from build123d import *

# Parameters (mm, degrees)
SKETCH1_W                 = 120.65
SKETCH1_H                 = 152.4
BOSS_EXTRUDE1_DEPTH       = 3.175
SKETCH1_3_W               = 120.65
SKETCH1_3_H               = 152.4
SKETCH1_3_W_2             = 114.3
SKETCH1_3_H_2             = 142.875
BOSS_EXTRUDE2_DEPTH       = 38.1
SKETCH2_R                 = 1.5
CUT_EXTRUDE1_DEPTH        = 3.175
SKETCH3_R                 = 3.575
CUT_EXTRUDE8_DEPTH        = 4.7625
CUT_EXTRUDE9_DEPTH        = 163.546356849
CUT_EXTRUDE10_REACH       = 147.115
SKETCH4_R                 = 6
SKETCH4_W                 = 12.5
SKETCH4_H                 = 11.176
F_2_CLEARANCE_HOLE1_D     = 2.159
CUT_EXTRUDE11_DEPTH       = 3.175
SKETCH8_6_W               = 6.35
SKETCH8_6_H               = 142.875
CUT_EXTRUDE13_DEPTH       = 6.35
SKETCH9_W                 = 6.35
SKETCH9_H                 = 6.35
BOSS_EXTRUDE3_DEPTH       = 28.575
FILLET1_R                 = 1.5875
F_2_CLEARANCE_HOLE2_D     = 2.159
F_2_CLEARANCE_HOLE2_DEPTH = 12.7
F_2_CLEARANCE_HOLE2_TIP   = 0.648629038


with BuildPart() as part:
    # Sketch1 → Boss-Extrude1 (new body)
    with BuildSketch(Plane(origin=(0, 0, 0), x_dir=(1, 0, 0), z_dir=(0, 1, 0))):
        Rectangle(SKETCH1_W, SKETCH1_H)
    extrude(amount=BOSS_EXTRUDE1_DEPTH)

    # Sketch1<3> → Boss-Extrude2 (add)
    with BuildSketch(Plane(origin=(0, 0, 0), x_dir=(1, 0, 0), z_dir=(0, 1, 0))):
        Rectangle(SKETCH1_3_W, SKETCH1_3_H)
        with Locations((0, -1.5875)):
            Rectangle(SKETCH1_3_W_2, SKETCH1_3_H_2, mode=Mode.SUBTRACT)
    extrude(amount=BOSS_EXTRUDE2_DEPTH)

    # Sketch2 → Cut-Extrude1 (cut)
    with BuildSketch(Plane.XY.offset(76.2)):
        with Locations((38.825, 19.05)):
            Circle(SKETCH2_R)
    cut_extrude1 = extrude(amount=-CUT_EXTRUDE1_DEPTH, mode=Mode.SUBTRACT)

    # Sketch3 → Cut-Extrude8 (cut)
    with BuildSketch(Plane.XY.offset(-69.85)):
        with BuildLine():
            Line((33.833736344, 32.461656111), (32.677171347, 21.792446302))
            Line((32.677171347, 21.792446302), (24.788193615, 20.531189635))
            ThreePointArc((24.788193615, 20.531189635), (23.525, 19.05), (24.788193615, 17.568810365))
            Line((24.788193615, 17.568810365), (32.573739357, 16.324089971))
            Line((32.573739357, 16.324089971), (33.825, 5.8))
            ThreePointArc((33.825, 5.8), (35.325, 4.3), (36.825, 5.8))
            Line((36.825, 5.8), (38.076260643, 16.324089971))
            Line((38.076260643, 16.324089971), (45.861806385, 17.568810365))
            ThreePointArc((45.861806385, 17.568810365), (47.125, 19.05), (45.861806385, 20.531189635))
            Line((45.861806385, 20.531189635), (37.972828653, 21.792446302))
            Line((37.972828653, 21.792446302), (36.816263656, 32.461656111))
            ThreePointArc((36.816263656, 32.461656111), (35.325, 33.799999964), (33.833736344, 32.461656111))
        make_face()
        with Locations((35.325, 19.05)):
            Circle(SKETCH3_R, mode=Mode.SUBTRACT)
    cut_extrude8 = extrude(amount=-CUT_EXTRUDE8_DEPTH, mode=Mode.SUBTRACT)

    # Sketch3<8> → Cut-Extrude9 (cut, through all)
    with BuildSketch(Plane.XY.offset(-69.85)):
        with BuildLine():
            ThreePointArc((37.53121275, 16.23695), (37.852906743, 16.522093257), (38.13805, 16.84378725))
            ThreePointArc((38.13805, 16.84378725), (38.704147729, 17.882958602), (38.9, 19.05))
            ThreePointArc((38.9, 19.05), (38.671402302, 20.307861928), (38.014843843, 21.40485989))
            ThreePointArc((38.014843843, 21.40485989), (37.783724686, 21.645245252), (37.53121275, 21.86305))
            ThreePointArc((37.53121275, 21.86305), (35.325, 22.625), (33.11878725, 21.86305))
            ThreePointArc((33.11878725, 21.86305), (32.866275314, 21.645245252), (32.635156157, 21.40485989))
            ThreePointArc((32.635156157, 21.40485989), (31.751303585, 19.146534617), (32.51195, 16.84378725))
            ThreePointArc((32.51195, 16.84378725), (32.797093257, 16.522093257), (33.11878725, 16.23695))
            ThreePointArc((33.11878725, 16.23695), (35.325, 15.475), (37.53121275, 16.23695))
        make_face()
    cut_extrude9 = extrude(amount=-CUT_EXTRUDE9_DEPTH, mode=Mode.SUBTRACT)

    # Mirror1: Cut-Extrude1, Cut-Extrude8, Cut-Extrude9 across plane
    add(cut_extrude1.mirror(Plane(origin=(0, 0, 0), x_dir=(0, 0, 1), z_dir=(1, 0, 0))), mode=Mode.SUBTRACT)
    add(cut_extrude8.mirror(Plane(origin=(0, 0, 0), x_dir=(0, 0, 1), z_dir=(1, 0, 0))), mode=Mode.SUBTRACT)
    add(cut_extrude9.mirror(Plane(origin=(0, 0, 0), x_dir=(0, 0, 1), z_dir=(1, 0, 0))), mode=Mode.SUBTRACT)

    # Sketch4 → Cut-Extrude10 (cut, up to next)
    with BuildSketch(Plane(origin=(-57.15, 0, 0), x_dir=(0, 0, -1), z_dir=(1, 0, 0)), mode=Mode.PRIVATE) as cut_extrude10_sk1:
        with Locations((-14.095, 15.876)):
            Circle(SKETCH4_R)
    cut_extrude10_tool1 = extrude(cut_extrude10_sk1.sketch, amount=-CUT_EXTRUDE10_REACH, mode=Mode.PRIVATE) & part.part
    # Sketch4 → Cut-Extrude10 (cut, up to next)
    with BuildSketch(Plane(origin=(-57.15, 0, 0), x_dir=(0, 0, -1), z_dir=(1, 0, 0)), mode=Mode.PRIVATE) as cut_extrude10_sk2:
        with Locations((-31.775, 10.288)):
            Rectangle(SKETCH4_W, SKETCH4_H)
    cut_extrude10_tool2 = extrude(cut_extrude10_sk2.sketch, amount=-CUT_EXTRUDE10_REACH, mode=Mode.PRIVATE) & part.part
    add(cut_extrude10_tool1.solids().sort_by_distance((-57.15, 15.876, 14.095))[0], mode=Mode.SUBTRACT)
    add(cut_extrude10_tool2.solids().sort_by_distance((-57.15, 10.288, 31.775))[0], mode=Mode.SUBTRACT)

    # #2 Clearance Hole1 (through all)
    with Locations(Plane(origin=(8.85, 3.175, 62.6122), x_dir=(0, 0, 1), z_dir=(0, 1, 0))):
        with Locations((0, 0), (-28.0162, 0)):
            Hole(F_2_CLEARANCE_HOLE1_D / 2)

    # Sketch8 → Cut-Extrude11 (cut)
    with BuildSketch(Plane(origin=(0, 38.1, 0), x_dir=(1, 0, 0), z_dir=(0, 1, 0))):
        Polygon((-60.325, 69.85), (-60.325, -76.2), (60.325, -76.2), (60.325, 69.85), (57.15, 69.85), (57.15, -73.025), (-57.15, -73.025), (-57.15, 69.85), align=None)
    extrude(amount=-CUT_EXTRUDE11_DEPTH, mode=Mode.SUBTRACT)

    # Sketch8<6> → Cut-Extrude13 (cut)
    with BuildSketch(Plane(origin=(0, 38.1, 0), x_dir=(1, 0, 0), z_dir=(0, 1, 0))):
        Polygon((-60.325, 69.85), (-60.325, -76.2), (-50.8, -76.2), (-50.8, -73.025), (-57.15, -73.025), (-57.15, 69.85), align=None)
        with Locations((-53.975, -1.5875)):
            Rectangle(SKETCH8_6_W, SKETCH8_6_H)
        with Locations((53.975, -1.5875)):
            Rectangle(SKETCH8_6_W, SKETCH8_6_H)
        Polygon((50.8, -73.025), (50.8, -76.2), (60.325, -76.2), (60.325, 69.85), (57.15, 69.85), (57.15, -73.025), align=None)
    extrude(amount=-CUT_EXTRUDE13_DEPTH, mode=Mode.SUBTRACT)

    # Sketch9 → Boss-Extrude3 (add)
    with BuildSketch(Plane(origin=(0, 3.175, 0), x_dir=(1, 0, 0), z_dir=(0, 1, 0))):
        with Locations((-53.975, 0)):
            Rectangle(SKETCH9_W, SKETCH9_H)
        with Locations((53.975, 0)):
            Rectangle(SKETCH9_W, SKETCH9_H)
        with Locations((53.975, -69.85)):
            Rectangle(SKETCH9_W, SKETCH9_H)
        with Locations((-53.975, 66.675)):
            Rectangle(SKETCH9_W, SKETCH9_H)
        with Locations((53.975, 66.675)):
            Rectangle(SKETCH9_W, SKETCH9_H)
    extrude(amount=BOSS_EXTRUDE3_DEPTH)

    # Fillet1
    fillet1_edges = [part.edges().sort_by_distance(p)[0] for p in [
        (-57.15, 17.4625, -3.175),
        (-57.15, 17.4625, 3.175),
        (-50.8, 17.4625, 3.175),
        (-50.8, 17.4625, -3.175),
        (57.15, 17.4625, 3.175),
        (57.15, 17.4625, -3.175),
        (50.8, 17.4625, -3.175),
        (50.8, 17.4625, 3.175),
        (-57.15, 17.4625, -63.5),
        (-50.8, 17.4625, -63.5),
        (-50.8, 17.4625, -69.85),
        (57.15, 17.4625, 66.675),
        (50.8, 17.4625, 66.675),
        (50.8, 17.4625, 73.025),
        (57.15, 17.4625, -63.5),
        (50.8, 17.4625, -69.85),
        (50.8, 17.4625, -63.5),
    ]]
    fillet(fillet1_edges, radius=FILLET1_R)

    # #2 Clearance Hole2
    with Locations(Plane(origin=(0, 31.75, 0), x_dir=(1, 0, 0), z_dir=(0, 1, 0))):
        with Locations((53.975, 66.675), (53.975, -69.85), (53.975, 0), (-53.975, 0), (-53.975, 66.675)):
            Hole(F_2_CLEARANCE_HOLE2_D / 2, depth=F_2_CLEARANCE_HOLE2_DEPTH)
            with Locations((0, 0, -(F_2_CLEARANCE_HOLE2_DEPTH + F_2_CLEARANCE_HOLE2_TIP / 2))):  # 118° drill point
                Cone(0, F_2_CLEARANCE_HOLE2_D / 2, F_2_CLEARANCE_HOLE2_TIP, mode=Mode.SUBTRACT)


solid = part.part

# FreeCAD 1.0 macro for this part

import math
import FreeCAD as App
import Part
import Sketcher

V = App.Vector
Q = App.Units.Quantity


def edges_at(feature, points):
    """Names of the edges that pass closest to the given points."""
    edges = feature.Shape.Edges
    near = lambda p: min(range(len(edges)), key=lambda i: edges[i].distToShape(Part.Vertex(*p))[0])
    return sorted({f"Edge{near(p) + 1}" for p in points})

doc = App.newDocument("Part")
body = doc.addObject("PartDesign::Body", "Body")

# Sketch on XZ plane
sketch1 = body.newObject("Sketcher::SketchObject", "Sketch")
sketch1.AttachmentSupport = (doc.getObject("XZ_Plane"), [""])
sketch1.MapMode = "FlatFace"
sketch1.addGeometry(Part.LineSegment(V(-60.325, -76.2, 0), V(-60.325, 76.2, 0)), False)
sketch1.addGeometry(Part.LineSegment(V(-60.325, 76.2, 0), V(60.325, 76.2, 0)), False)
sketch1.addGeometry(Part.LineSegment(V(60.325, 76.2, 0), V(60.325, -76.2, 0)), False)
sketch1.addGeometry(Part.LineSegment(V(60.325, -76.2, 0), V(-60.325, -76.2, 0)), False)
sketch1.addConstraint(Sketcher.Constraint("Coincident", 0, 2, 1, 1))
sketch1.addConstraint(Sketcher.Constraint("Coincident", 1, 2, 2, 1))
sketch1.addConstraint(Sketcher.Constraint("Coincident", 2, 2, 3, 1))
sketch1.addConstraint(Sketcher.Constraint("Coincident", 3, 2, 0, 1))
sketch1.addConstraint(Sketcher.Constraint("Vertical", 0))
sketch1.addConstraint(Sketcher.Constraint("Horizontal", 1))
sketch1.addConstraint(Sketcher.Constraint("Vertical", 2))
sketch1.addConstraint(Sketcher.Constraint("Horizontal", 3))
sketch1.addConstraint(Sketcher.Constraint("Symmetric", 0, 2, 2, 2, -1, 1))
sketch1.addConstraint(Sketcher.Constraint("DistanceY", 0, 1, 0, 2, Q("6 in")))
sketch1.addConstraint(Sketcher.Constraint("DistanceX", 1, 1, 1, 2, Q("4.75 in")))
pad1 = body.newObject("PartDesign::Pad", "Pad")
pad1.Profile = sketch1
pad1.Length = Q("0.125 in")
pad1.Reversed = True

# Sketch on XZ plane
sketch2 = body.newObject("Sketcher::SketchObject", "Sketch001")
sketch2.AttachmentSupport = (doc.getObject("XZ_Plane"), [""])
sketch2.MapMode = "FlatFace"
sketch2.addGeometry(Part.LineSegment(V(-60.325, -76.2, 0), V(-60.325, 76.2, 0)), False)
sketch2.addGeometry(Part.LineSegment(V(-60.325, 76.2, 0), V(60.325, 76.2, 0)), False)
sketch2.addGeometry(Part.LineSegment(V(60.325, 76.2, 0), V(60.325, -76.2, 0)), False)
sketch2.addGeometry(Part.LineSegment(V(60.325, -76.2, 0), V(-60.325, -76.2, 0)), False)
sketch2.addGeometry(Part.LineSegment(V(57.15, 73.025, 0), V(-57.15, 73.025, 0)), False)
sketch2.addGeometry(Part.LineSegment(V(-57.15, 73.025, 0), V(-57.15, -69.85, 0)), False)
sketch2.addGeometry(Part.LineSegment(V(-57.15, -69.85, 0), V(57.15, -69.85, 0)), False)
sketch2.addGeometry(Part.LineSegment(V(57.15, -69.85, 0), V(57.15, 73.025, 0)), False)
sketch2.addConstraint(Sketcher.Constraint("Coincident", 0, 2, 1, 1))
sketch2.addConstraint(Sketcher.Constraint("Coincident", 1, 2, 2, 1))
sketch2.addConstraint(Sketcher.Constraint("Coincident", 2, 2, 3, 1))
sketch2.addConstraint(Sketcher.Constraint("Coincident", 3, 2, 0, 1))
sketch2.addConstraint(Sketcher.Constraint("Coincident", 4, 2, 5, 1))
sketch2.addConstraint(Sketcher.Constraint("Coincident", 5, 2, 6, 1))
sketch2.addConstraint(Sketcher.Constraint("Coincident", 6, 2, 7, 1))
sketch2.addConstraint(Sketcher.Constraint("Coincident", 7, 2, 4, 1))
sketch2.addConstraint(Sketcher.Constraint("Vertical", 0))
sketch2.addConstraint(Sketcher.Constraint("Horizontal", 1))
sketch2.addConstraint(Sketcher.Constraint("Vertical", 2))
sketch2.addConstraint(Sketcher.Constraint("Horizontal", 3))
sketch2.addConstraint(Sketcher.Constraint("Horizontal", 4))
sketch2.addConstraint(Sketcher.Constraint("Vertical", 5))
sketch2.addConstraint(Sketcher.Constraint("Horizontal", 6))
sketch2.addConstraint(Sketcher.Constraint("Vertical", 7))
sketch2.addConstraint(Sketcher.Constraint("Symmetric", 0, 2, 2, 2, -1, 1))
sketch2.addConstraint(Sketcher.Constraint("DistanceY", 0, 1, 0, 2, Q("6 in")))
sketch2.addConstraint(Sketcher.Constraint("DistanceX", 4, 2, 4, 1, Q("4.5 in")))
sketch2.addConstraint(Sketcher.Constraint("DistanceX", 1, 1, 1, 2, Q("4.75 in")))
sketch2.addConstraint(Sketcher.Constraint("DistanceY", 5, 2, 5, 1, Q("5.625 in")))
sketch2.addConstraint(Sketcher.Constraint("DistanceX", 4, 2, -1, 1, Q("2.25 in")))
sketch2.addConstraint(Sketcher.Constraint("DistanceY", 5, 2, -1, 1, Q("2.75 in")))
pad2 = body.newObject("PartDesign::Pad", "Pad001")
pad2.Profile = sketch2
pad2.Length = Q("1.5 in")
pad2.Reversed = True

# Sketch on XY plane
sketch3 = body.newObject("Sketcher::SketchObject", "Sketch002")
sketch3.AttachmentSupport = (doc.getObject("XY_Plane"), [""])
sketch3.MapMode = "FlatFace"
sketch3.AttachmentOffset = App.Placement(V(0, 0, 3 * 25.4), App.Rotation())
sketch3.addGeometry(Part.Circle(V(38.825, 19.05, 0), V(0, 0, 1), 1.5), False)
sketch3.addConstraint(Sketcher.Constraint("Diameter", 0, 3.0))
sketch3.addConstraint(Sketcher.Constraint("DistanceY", -1, 1, 0, 3, Q("0.75 in")))
sketch3.addConstraint(Sketcher.Constraint("DistanceX", -1, 1, 0, 3, 38.825))
pocket1 = body.newObject("PartDesign::Pocket", "Pocket")
pocket1.Profile = sketch3
pocket1.Length = Q("0.125 in")

# Sketch on XY plane
sketch4 = body.newObject("Sketcher::SketchObject", "Sketch003")
sketch4.AttachmentSupport = (doc.getObject("XY_Plane"), [""])
sketch4.MapMode = "FlatFace"
sketch4.AttachmentOffset = App.Placement(V(0, 0, -2.75 * 25.4), App.Rotation())
sketch4.addGeometry(Part.LineSegment(V(33.833736, 32.461656, 0), V(32.677171, 21.792446, 0)), False)
sketch4.addGeometry(Part.LineSegment(V(32.677171, 21.792446, 0), V(24.788194, 20.53119, 0)), False)
sketch4.addGeometry(Part.ArcOfCircle(Part.Circle(V(25.025, 19.05, 0), V(0, 0, 1), 1.5), math.radians(99.083339), math.radians(260.916661)), False)
sketch4.addGeometry(Part.LineSegment(V(24.788194, 17.56881, 0), V(32.573739, 16.32409, 0)), False)
sketch4.addGeometry(Part.LineSegment(V(32.573739, 16.32409, 0), V(33.825, 5.8, 0)), False)
sketch4.addGeometry(Part.ArcOfCircle(Part.Circle(V(35.325, 5.8, 0), V(0, 0, 1), 1.5), math.radians(180), math.radians(360)), False)
sketch4.addGeometry(Part.LineSegment(V(36.825, 5.8, 0), V(38.076261, 16.32409, 0)), False)
sketch4.addGeometry(Part.LineSegment(V(38.076261, 16.32409, 0), V(45.861806, 17.56881, 0)), False)
sketch4.addGeometry(Part.ArcOfCircle(Part.Circle(V(45.625, 19.05, 0), V(0, 0, 1), 1.5), math.radians(-80.916661), math.radians(80.916661)), False)
sketch4.addGeometry(Part.LineSegment(V(45.861806, 20.53119, 0), V(37.972829, 21.792446, 0)), False)
sketch4.addGeometry(Part.LineSegment(V(37.972829, 21.792446, 0), V(36.816264, 32.461656, 0)), False)
sketch4.addGeometry(Part.ArcOfCircle(Part.Circle(V(35.325, 32.3, 0), V(0, 0, 1), 1.5), math.radians(6.186826), math.radians(173.813174)), False)
sketch4.addGeometry(Part.Circle(V(35.325, 19.05, 0), V(0, 0, 1), 3.575), False)
sketch4.addConstraint(Sketcher.Constraint("Coincident", 0, 2, 1, 1))
sketch4.addConstraint(Sketcher.Constraint("Tangent", 1, 2, 2, 1))
sketch4.addConstraint(Sketcher.Constraint("Tangent", 2, 2, 3, 1))
sketch4.addConstraint(Sketcher.Constraint("Coincident", 3, 2, 4, 1))
sketch4.addConstraint(Sketcher.Constraint("Coincident", 4, 2, 5, 1))
sketch4.addConstraint(Sketcher.Constraint("Coincident", 5, 2, 6, 1))
sketch4.addConstraint(Sketcher.Constraint("Coincident", 6, 2, 7, 1))
sketch4.addConstraint(Sketcher.Constraint("Tangent", 7, 2, 8, 1))
sketch4.addConstraint(Sketcher.Constraint("Tangent", 8, 2, 9, 1))
sketch4.addConstraint(Sketcher.Constraint("Coincident", 9, 2, 10, 1))
sketch4.addConstraint(Sketcher.Constraint("Tangent", 10, 2, 11, 1))
sketch4.addConstraint(Sketcher.Constraint("Tangent", 11, 2, 0, 1))
sketch4.addConstraint(Sketcher.Constraint("Equal", 2, 5))
sketch4.addConstraint(Sketcher.Constraint("Equal", 5, 8))
sketch4.addConstraint(Sketcher.Constraint("Equal", 8, 11))
sketch4.addConstraint(Sketcher.Constraint("Parallel", 1, 7))
sketch4.addConstraint(Sketcher.Constraint("Parallel", 3, 9))
sketch4.addConstraint(Sketcher.Constraint("Horizontal", 2, 3, 8, 3))
sketch4.addConstraint(Sketcher.Constraint("Horizontal", 8, 3, 12, 3))
sketch4.addConstraint(Sketcher.Constraint("Horizontal", 5, 3, 4, 2))
sketch4.addConstraint(Sketcher.Constraint("Horizontal", 4, 2, 5, 2))
sketch4.addConstraint(Sketcher.Constraint("Horizontal", 3, 2, 6, 2))
sketch4.addConstraint(Sketcher.Constraint("Horizontal", 2, 2, 7, 2))
sketch4.addConstraint(Sketcher.Constraint("Horizontal", 0, 2, 9, 2))
sketch4.addConstraint(Sketcher.Constraint("Horizontal", 10, 2, 11, 2))
sketch4.addConstraint(Sketcher.Constraint("Vertical", 5, 3, 11, 3))
sketch4.addConstraint(Sketcher.Constraint("Vertical", 11, 3, 12, 3))
sketch4.addConstraint(Sketcher.Constraint("Diameter", 12, 7.15))
sketch4.addConstraint(Sketcher.Constraint("DistanceY", -1, 1, 2, 3, Q("0.75 in")))
sketch4.addConstraint(Sketcher.Constraint("Radius", 2, 1.5))
sketch4.addConstraint(Sketcher.Constraint("DistanceX", -1, 1, 2, 3, 25.025))
sketch4.addConstraint(Sketcher.Constraint("DistanceX", -1, 1, 5, 3, 35.325))
sketch4.addConstraint(Sketcher.Constraint("DistanceY", -1, 1, 5, 3, 5.8))
sketch4.addConstraint(Sketcher.Constraint("DistanceY", -1, 1, 11, 3, 32.3))
sketch4.addConstraint(Sketcher.Constraint("DistanceY", 3, 2, 1, 2, 4.2071))
sketch4.addConstraint(Sketcher.Constraint("Distance", 3, 7.884418))
sketch4.addConstraint(Sketcher.Constraint("DistanceX", -1, 1, 0, 2, 32.677171))
pocket2 = body.newObject("PartDesign::Pocket", "Pocket001")
pocket2.Profile = sketch4
pocket2.Length = Q("0.1875 in")

# Sketch on XY plane
sketch5 = body.newObject("Sketcher::SketchObject", "Sketch004")
sketch5.AttachmentSupport = (doc.getObject("XY_Plane"), [""])
sketch5.MapMode = "FlatFace"
sketch5.AttachmentOffset = App.Placement(V(0, 0, -2.75 * 25.4), App.Rotation())
sketch5.addGeometry(Part.ArcOfCircle(Part.Circle(V(35.325, 19.05, 0), V(0, 0, 1), 3.575), math.radians(-51.893697), math.radians(-38.106303)), False)
sketch5.addGeometry(Part.ArcOfCircle(Part.Circle(V(35.325, 19.05, 0), V(0, 0, 1), 3.575), math.radians(-38.106303), math.radians(0)), False)
sketch5.addGeometry(Part.ArcOfCircle(Part.Circle(V(35.325, 19.05, 0), V(0, 0, 1), 3.575), math.radians(0), math.radians(41.20096)), False)
sketch5.addGeometry(Part.ArcOfCircle(Part.Circle(V(35.325, 19.05, 0), V(0, 0, 1), 3.575), math.radians(41.20096), math.radians(51.893696)), False)
sketch5.addGeometry(Part.ArcOfCircle(Part.Circle(V(35.325, 19.05, 0), V(0, 0, 1), 3.575), math.radians(51.893697), math.radians(128.106303)), False)
sketch5.addGeometry(Part.ArcOfCircle(Part.Circle(V(35.325, 19.05, 0), V(0, 0, 1), 3.575), math.radians(128.106304), math.radians(138.79904)), False)
sketch5.addGeometry(Part.ArcOfCircle(Part.Circle(V(35.325, 19.05, 0), V(0, 0, 1), 3.575), math.radians(138.79904), math.radians(218.106303)), False)
sketch5.addGeometry(Part.ArcOfCircle(Part.Circle(V(35.325, 19.05, 0), V(0, 0, 1), 3.575), math.radians(-141.893697), math.radians(-128.106303)), False)
sketch5.addGeometry(Part.ArcOfCircle(Part.Circle(V(35.325, 19.05, 0), V(0, 0, 1), 3.575), math.radians(-128.106303), math.radians(-51.893697)), False)
sketch5.addConstraint(Sketcher.Constraint("Tangent", 0, 2, 1, 1))
sketch5.addConstraint(Sketcher.Constraint("Tangent", 1, 2, 2, 1))
sketch5.addConstraint(Sketcher.Constraint("Tangent", 2, 2, 3, 1))
sketch5.addConstraint(Sketcher.Constraint("Tangent", 3, 2, 4, 1))
sketch5.addConstraint(Sketcher.Constraint("Tangent", 4, 2, 5, 1))
sketch5.addConstraint(Sketcher.Constraint("Tangent", 5, 2, 6, 1))
sketch5.addConstraint(Sketcher.Constraint("Tangent", 6, 2, 7, 1))
sketch5.addConstraint(Sketcher.Constraint("Tangent", 7, 2, 8, 1))
sketch5.addConstraint(Sketcher.Constraint("Tangent", 8, 2, 0, 1))
sketch5.addConstraint(Sketcher.Constraint("Coincident", 2, 3, 0, 3))
sketch5.addConstraint(Sketcher.Constraint("Coincident", 4, 3, 0, 3))
sketch5.addConstraint(Sketcher.Constraint("Coincident", 6, 3, 0, 3))
sketch5.addConstraint(Sketcher.Constraint("Horizontal", 8, 3, 1, 2))
sketch5.addConstraint(Sketcher.Constraint("Horizontal", 3, 2, 4, 2))
sketch5.addConstraint(Sketcher.Constraint("Horizontal", 2, 2, 5, 2))
sketch5.addConstraint(Sketcher.Constraint("Horizontal", 0, 2, 6, 2))
sketch5.addConstraint(Sketcher.Constraint("Horizontal", 7, 2, 8, 2))
sketch5.addConstraint(Sketcher.Constraint("Vertical", 4, 2, 7, 2))
sketch5.addConstraint(Sketcher.Constraint("DistanceY", -1, 1, 0, 3, Q("0.75 in")))
sketch5.addConstraint(Sketcher.Constraint("Radius", 0, 3.575))
sketch5.addConstraint(Sketcher.Constraint("DistanceX", -1, 1, 0, 3, 35.325))
sketch5.addConstraint(Sketcher.Constraint("DistanceX", -1, 1, 0, 2, 38.13805))
sketch5.addConstraint(Sketcher.Constraint("DistanceY", -1, 1, 2, 2, 21.40486))
sketch5.addConstraint(Sketcher.Constraint("DistanceY", -1, 1, 3, 2, 21.86305))
pocket3 = body.newObject("PartDesign::Pocket", "Pocket002")
pocket3.Profile = sketch5
pocket3.Type = "ThroughAll"
doc.recompute()

mirrored = body.newObject("PartDesign::Mirrored", "Mirrored")
mirrored.Originals = [pocket1, pocket2, pocket3]
mirrored.MirrorPlane = (doc.getObject("YZ_Plane"), [""])
body.Tip = mirrored

# Sketch on YZ plane
sketch6 = body.newObject("Sketcher::SketchObject", "Sketch005")
sketch6.AttachmentSupport = (doc.getObject("YZ_Plane"), [""])
sketch6.MapMode = "FlatFace"
sketch6.AttachmentOffset = App.Placement(V(0, 0, -2.25 * 25.4), App.Rotation())
sketch6.addGeometry(Part.Circle(V(15.876, 14.095, 0), V(0, 0, 1), 6), False)
sketch6.addConstraint(Sketcher.Constraint("Diameter", 0, 12.0))
sketch6.addConstraint(Sketcher.Constraint("DistanceX", -1, 1, 0, 3, 15.876))
sketch6.addConstraint(Sketcher.Constraint("DistanceY", -1, 1, 0, 3, 14.095))
pocket4 = body.newObject("PartDesign::Pocket", "Pocket003")
pocket4.Profile = sketch6
pocket4.Type = "UpToFirst"

# Sketch on YZ plane
sketch7 = body.newObject("Sketcher::SketchObject", "Sketch006")
sketch7.AttachmentSupport = (doc.getObject("YZ_Plane"), [""])
sketch7.MapMode = "FlatFace"
sketch7.AttachmentOffset = App.Placement(V(0, 0, -2.25 * 25.4), App.Rotation())
sketch7.addGeometry(Part.LineSegment(V(15.876, 38.025, 0), V(4.7, 38.025, 0)), False)
sketch7.addGeometry(Part.LineSegment(V(4.7, 38.025, 0), V(4.7, 25.525, 0)), False)
sketch7.addGeometry(Part.LineSegment(V(4.7, 25.525, 0), V(15.876, 25.525, 0)), False)
sketch7.addGeometry(Part.LineSegment(V(15.876, 25.525, 0), V(15.876, 38.025, 0)), False)
sketch7.addConstraint(Sketcher.Constraint("Coincident", 0, 2, 1, 1))
sketch7.addConstraint(Sketcher.Constraint("Coincident", 1, 2, 2, 1))
sketch7.addConstraint(Sketcher.Constraint("Coincident", 2, 2, 3, 1))
sketch7.addConstraint(Sketcher.Constraint("Coincident", 3, 2, 0, 1))
sketch7.addConstraint(Sketcher.Constraint("Horizontal", 0))
sketch7.addConstraint(Sketcher.Constraint("Vertical", 1))
sketch7.addConstraint(Sketcher.Constraint("Horizontal", 2))
sketch7.addConstraint(Sketcher.Constraint("Vertical", 3))
sketch7.addConstraint(Sketcher.Constraint("DistanceX", 0, 2, 0, 1, Q("0.44 in")))
sketch7.addConstraint(Sketcher.Constraint("DistanceY", 1, 2, 1, 1, 12.5))
sketch7.addConstraint(Sketcher.Constraint("DistanceX", -1, 1, 0, 2, 4.7))
sketch7.addConstraint(Sketcher.Constraint("DistanceY", -1, 1, 0, 2, 38.025))
pocket5 = body.newObject("PartDesign::Pocket", "Pocket004")
pocket5.Profile = sketch7
pocket5.Type = "UpToFirst"

# Sketch on XZ plane
sketch8 = body.newObject("Sketcher::SketchObject", "Sketch007")
sketch8.AttachmentSupport = (doc.getObject("XZ_Plane"), [""])
sketch8.MapMode = "FlatFace"
sketch8.AttachmentOffset = App.Placement(V(0, 0, -0.125 * 25.4), App.Rotation())
sketch8.addGeometry(Part.Circle(V(8.85, 62.6122, 0), V(0, 0, 1), 1.0795), False)
sketch8.addGeometry(Part.Circle(V(8.85, 34.596, 0), V(0, 0, 1), 1.0795), False)
sketch8.addConstraint(Sketcher.Constraint("Equal", 0, 1))
sketch8.addConstraint(Sketcher.Constraint("Vertical", 0, 3, 1, 3))
sketch8.addConstraint(Sketcher.Constraint("Diameter", 0, Q("0.085 in")))
sketch8.addConstraint(Sketcher.Constraint("DistanceY", 1, 3, 0, 3, Q("1.103 in")))
sketch8.addConstraint(Sketcher.Constraint("DistanceX", -1, 1, 0, 3, 8.85))
sketch8.addConstraint(Sketcher.Constraint("DistanceY", -1, 1, 0, 3, 62.6122))
doc.recompute()
hole = body.newObject("PartDesign::Hole", "Hole")
hole.Profile = sketch8
hole.ThreadType = "None"
hole.Diameter = Q("0.085 in")
hole.DepthType = "ThroughAll"
hole.Reversed = True

# Sketch on XZ plane
sketch9 = body.newObject("Sketcher::SketchObject", "Sketch008")
sketch9.AttachmentSupport = (doc.getObject("XZ_Plane"), [""])
sketch9.MapMode = "FlatFace"
sketch9.AttachmentOffset = App.Placement(V(0, 0, -1.5 * 25.4), App.Rotation())
sketch9.addGeometry(Part.LineSegment(V(-60.325, -69.85, 0), V(-60.325, 76.2, 0)), False)
sketch9.addGeometry(Part.LineSegment(V(-60.325, 76.2, 0), V(60.325, 76.2, 0)), False)
sketch9.addGeometry(Part.LineSegment(V(60.325, 76.2, 0), V(60.325, -69.85, 0)), False)
sketch9.addGeometry(Part.LineSegment(V(60.325, -69.85, 0), V(57.15, -69.85, 0)), False)
sketch9.addGeometry(Part.LineSegment(V(57.15, -69.85, 0), V(57.15, 73.025, 0)), False)
sketch9.addGeometry(Part.LineSegment(V(57.15, 73.025, 0), V(-57.15, 73.025, 0)), False)
sketch9.addGeometry(Part.LineSegment(V(-57.15, 73.025, 0), V(-57.15, -69.85, 0)), False)
sketch9.addGeometry(Part.LineSegment(V(-57.15, -69.85, 0), V(-60.325, -69.85, 0)), False)
sketch9.addConstraint(Sketcher.Constraint("Coincident", 0, 2, 1, 1))
sketch9.addConstraint(Sketcher.Constraint("Coincident", 1, 2, 2, 1))
sketch9.addConstraint(Sketcher.Constraint("Coincident", 2, 2, 3, 1))
sketch9.addConstraint(Sketcher.Constraint("Coincident", 3, 2, 4, 1))
sketch9.addConstraint(Sketcher.Constraint("Coincident", 4, 2, 5, 1))
sketch9.addConstraint(Sketcher.Constraint("Coincident", 5, 2, 6, 1))
sketch9.addConstraint(Sketcher.Constraint("Coincident", 6, 2, 7, 1))
sketch9.addConstraint(Sketcher.Constraint("Coincident", 7, 2, 0, 1))
sketch9.addConstraint(Sketcher.Constraint("Vertical", 0))
sketch9.addConstraint(Sketcher.Constraint("Horizontal", 1))
sketch9.addConstraint(Sketcher.Constraint("Vertical", 2))
sketch9.addConstraint(Sketcher.Constraint("Horizontal", 3))
sketch9.addConstraint(Sketcher.Constraint("Vertical", 4))
sketch9.addConstraint(Sketcher.Constraint("Horizontal", 5))
sketch9.addConstraint(Sketcher.Constraint("Vertical", 6))
sketch9.addConstraint(Sketcher.Constraint("Horizontal", 7))
sketch9.addConstraint(Sketcher.Constraint("Symmetric", 3, 2, 6, 2, -2))
sketch9.addConstraint(Sketcher.Constraint("Equal", 3, 7))
sketch9.addConstraint(Sketcher.Constraint("DistanceX", 5, 2, 5, 1, Q("4.5 in")))
sketch9.addConstraint(Sketcher.Constraint("DistanceY", -1, 1, 0, 2, Q("3 in")))
sketch9.addConstraint(Sketcher.Constraint("DistanceX", 1, 1, 1, 2, Q("4.75 in")))
sketch9.addConstraint(Sketcher.Constraint("DistanceY", 0, 1, 0, 2, Q("5.75 in")))
sketch9.addConstraint(Sketcher.Constraint("DistanceY", 4, 1, 4, 2, Q("5.625 in")))
pocket6 = body.newObject("PartDesign::Pocket", "Pocket005")
pocket6.Profile = sketch9
pocket6.Length = Q("0.125 in")
pocket6.Reversed = True

# Sketch on XZ plane
sketch10 = body.newObject("Sketcher::SketchObject", "Sketch009")
sketch10.AttachmentSupport = (doc.getObject("XZ_Plane"), [""])
sketch10.MapMode = "FlatFace"
sketch10.AttachmentOffset = App.Placement(V(0, 0, -1.5 * 25.4), App.Rotation())
sketch10.addGeometry(Part.LineSegment(V(-60.325, -69.85, 0), V(-60.325, 76.2, 0)), False)
sketch10.addGeometry(Part.LineSegment(V(-60.325, 76.2, 0), V(-50.8, 76.2, 0)), False)
sketch10.addGeometry(Part.LineSegment(V(-50.8, 76.2, 0), V(-50.8, -69.85, 0)), False)
sketch10.addGeometry(Part.LineSegment(V(-50.8, -69.85, 0), V(-60.325, -69.85, 0)), False)
sketch10.addGeometry(Part.LineSegment(V(50.8, -69.85, 0), V(50.8, 76.2, 0)), False)
sketch10.addGeometry(Part.LineSegment(V(50.8, 76.2, 0), V(60.325, 76.2, 0)), False)
sketch10.addGeometry(Part.LineSegment(V(60.325, 76.2, 0), V(60.325, -69.85, 0)), False)
sketch10.addGeometry(Part.LineSegment(V(60.325, -69.85, 0), V(50.8, -69.85, 0)), False)
sketch10.addConstraint(Sketcher.Constraint("Coincident", 0, 2, 1, 1))
sketch10.addConstraint(Sketcher.Constraint("Coincident", 1, 2, 2, 1))
sketch10.addConstraint(Sketcher.Constraint("Coincident", 2, 2, 3, 1))
sketch10.addConstraint(Sketcher.Constraint("Coincident", 3, 2, 0, 1))
sketch10.addConstraint(Sketcher.Constraint("Coincident", 4, 2, 5, 1))
sketch10.addConstraint(Sketcher.Constraint("Coincident", 5, 2, 6, 1))
sketch10.addConstraint(Sketcher.Constraint("Coincident", 6, 2, 7, 1))
sketch10.addConstraint(Sketcher.Constraint("Coincident", 7, 2, 4, 1))
sketch10.addConstraint(Sketcher.Constraint("Vertical", 0))
sketch10.addConstraint(Sketcher.Constraint("Horizontal", 1))
sketch10.addConstraint(Sketcher.Constraint("Vertical", 2))
sketch10.addConstraint(Sketcher.Constraint("Horizontal", 3))
sketch10.addConstraint(Sketcher.Constraint("Vertical", 4))
sketch10.addConstraint(Sketcher.Constraint("Horizontal", 5))
sketch10.addConstraint(Sketcher.Constraint("Vertical", 6))
sketch10.addConstraint(Sketcher.Constraint("Horizontal", 7))
sketch10.addConstraint(Sketcher.Constraint("Symmetric", 1, 2, 4, 2, -2))
sketch10.addConstraint(Sketcher.Constraint("Symmetric", 3, 2, 6, 2, -2))
sketch10.addConstraint(Sketcher.Constraint("DistanceY", -1, 1, 0, 2, Q("3 in")))
sketch10.addConstraint(Sketcher.Constraint("DistanceX", 1, 2, -1, 1, Q("2 in")))
sketch10.addConstraint(Sketcher.Constraint("DistanceY", 0, 1, 0, 2, Q("5.75 in")))
sketch10.addConstraint(Sketcher.Constraint("DistanceX", 1, 1, 1, 2, Q("0.375 in")))
pocket7 = body.newObject("PartDesign::Pocket", "Pocket006")
pocket7.Profile = sketch10
pocket7.Length = Q("0.25 in")
pocket7.Reversed = True

# Sketch on XZ plane
sketch11 = body.newObject("Sketcher::SketchObject", "Sketch010")
sketch11.AttachmentSupport = (doc.getObject("XZ_Plane"), [""])
sketch11.MapMode = "FlatFace"
sketch11.AttachmentOffset = App.Placement(V(0, 0, -0.125 * 25.4), App.Rotation())
sketch11.addGeometry(Part.LineSegment(V(-57.15, -3.175, 0), V(-57.15, 3.175, 0)), False)
sketch11.addGeometry(Part.LineSegment(V(-57.15, 3.175, 0), V(-50.8, 3.175, 0)), False)
sketch11.addGeometry(Part.LineSegment(V(-50.8, 3.175, 0), V(-50.8, -3.175, 0)), False)
sketch11.addGeometry(Part.LineSegment(V(-50.8, -3.175, 0), V(-57.15, -3.175, 0)), False)
sketch11.addGeometry(Part.LineSegment(V(50.8, -3.175, 0), V(50.8, 3.175, 0)), False)
sketch11.addGeometry(Part.LineSegment(V(50.8, 3.175, 0), V(57.15, 3.175, 0)), False)
sketch11.addGeometry(Part.LineSegment(V(57.15, 3.175, 0), V(57.15, -3.175, 0)), False)
sketch11.addGeometry(Part.LineSegment(V(57.15, -3.175, 0), V(50.8, -3.175, 0)), False)
sketch11.addGeometry(Part.LineSegment(V(50.8, 66.675, 0), V(50.8, 73.025, 0)), False)
sketch11.addGeometry(Part.LineSegment(V(50.8, 73.025, 0), V(57.15, 73.025, 0)), False)
sketch11.addGeometry(Part.LineSegment(V(57.15, 73.025, 0), V(57.15, 66.675, 0)), False)
sketch11.addGeometry(Part.LineSegment(V(57.15, 66.675, 0), V(50.8, 66.675, 0)), False)
sketch11.addGeometry(Part.LineSegment(V(-57.15, -69.85, 0), V(-57.15, -63.5, 0)), False)
sketch11.addGeometry(Part.LineSegment(V(-57.15, -63.5, 0), V(-50.8, -63.5, 0)), False)
sketch11.addGeometry(Part.LineSegment(V(-50.8, -63.5, 0), V(-50.8, -69.85, 0)), False)
sketch11.addGeometry(Part.LineSegment(V(-50.8, -69.85, 0), V(-57.15, -69.85, 0)), False)
sketch11.addGeometry(Part.LineSegment(V(50.8, -69.85, 0), V(50.8, -63.5, 0)), False)
sketch11.addGeometry(Part.LineSegment(V(50.8, -63.5, 0), V(57.15, -63.5, 0)), False)
sketch11.addGeometry(Part.LineSegment(V(57.15, -63.5, 0), V(57.15, -69.85, 0)), False)
sketch11.addGeometry(Part.LineSegment(V(57.15, -69.85, 0), V(50.8, -69.85, 0)), False)
sketch11.addConstraint(Sketcher.Constraint("Coincident", 0, 2, 1, 1))
sketch11.addConstraint(Sketcher.Constraint("Coincident", 1, 2, 2, 1))
sketch11.addConstraint(Sketcher.Constraint("Coincident", 2, 2, 3, 1))
sketch11.addConstraint(Sketcher.Constraint("Coincident", 3, 2, 0, 1))
sketch11.addConstraint(Sketcher.Constraint("Coincident", 4, 2, 5, 1))
sketch11.addConstraint(Sketcher.Constraint("Coincident", 5, 2, 6, 1))
sketch11.addConstraint(Sketcher.Constraint("Coincident", 6, 2, 7, 1))
sketch11.addConstraint(Sketcher.Constraint("Coincident", 7, 2, 4, 1))
sketch11.addConstraint(Sketcher.Constraint("Coincident", 8, 2, 9, 1))
sketch11.addConstraint(Sketcher.Constraint("Coincident", 9, 2, 10, 1))
sketch11.addConstraint(Sketcher.Constraint("Coincident", 10, 2, 11, 1))
sketch11.addConstraint(Sketcher.Constraint("Coincident", 11, 2, 8, 1))
sketch11.addConstraint(Sketcher.Constraint("Coincident", 12, 2, 13, 1))
sketch11.addConstraint(Sketcher.Constraint("Coincident", 13, 2, 14, 1))
sketch11.addConstraint(Sketcher.Constraint("Coincident", 14, 2, 15, 1))
sketch11.addConstraint(Sketcher.Constraint("Coincident", 15, 2, 12, 1))
sketch11.addConstraint(Sketcher.Constraint("Coincident", 16, 2, 17, 1))
sketch11.addConstraint(Sketcher.Constraint("Coincident", 17, 2, 18, 1))
sketch11.addConstraint(Sketcher.Constraint("Coincident", 18, 2, 19, 1))
sketch11.addConstraint(Sketcher.Constraint("Coincident", 19, 2, 16, 1))
sketch11.addConstraint(Sketcher.Constraint("Vertical", 0))
sketch11.addConstraint(Sketcher.Constraint("Horizontal", 1))
sketch11.addConstraint(Sketcher.Constraint("Vertical", 2))
sketch11.addConstraint(Sketcher.Constraint("Horizontal", 3))
sketch11.addConstraint(Sketcher.Constraint("Vertical", 4))
sketch11.addConstraint(Sketcher.Constraint("Horizontal", 5))
sketch11.addConstraint(Sketcher.Constraint("Vertical", 6))
sketch11.addConstraint(Sketcher.Constraint("Horizontal", 7))
sketch11.addConstraint(Sketcher.Constraint("Vertical", 8))
sketch11.addConstraint(Sketcher.Constraint("Horizontal", 9))
sketch11.addConstraint(Sketcher.Constraint("Vertical", 10))
sketch11.addConstraint(Sketcher.Constraint("Horizontal", 11))
sketch11.addConstraint(Sketcher.Constraint("Vertical", 12))
sketch11.addConstraint(Sketcher.Constraint("Horizontal", 13))
sketch11.addConstraint(Sketcher.Constraint("Vertical", 14))
sketch11.addConstraint(Sketcher.Constraint("Horizontal", 15))
sketch11.addConstraint(Sketcher.Constraint("Vertical", 16))
sketch11.addConstraint(Sketcher.Constraint("Horizontal", 17))
sketch11.addConstraint(Sketcher.Constraint("Vertical", 18))
sketch11.addConstraint(Sketcher.Constraint("Horizontal", 19))
sketch11.addConstraint(Sketcher.Constraint("Symmetric", 2, 2, 4, 2, -1, 1))
sketch11.addConstraint(Sketcher.Constraint("Symmetric", 0, 2, 6, 2, -1, 1))
sketch11.addConstraint(Sketcher.Constraint("Symmetric", 13, 2, 16, 2, -2))
sketch11.addConstraint(Sketcher.Constraint("Symmetric", 15, 2, 18, 2, -2))
sketch11.addConstraint(Sketcher.Constraint("Horizontal", 1, 2, 4, 2))
sketch11.addConstraint(Sketcher.Constraint("Vertical", 7, 2, 8, 2))
sketch11.addConstraint(Sketcher.Constraint("Vertical", 6, 2, 9, 2))
sketch11.addConstraint(Sketcher.Constraint("Vertical", 3, 2, 12, 2))
sketch11.addConstraint(Sketcher.Constraint("Vertical", 2, 2, 13, 2))
sketch11.addConstraint(Sketcher.Constraint("Equal", 19, 0))
sketch11.addConstraint(Sketcher.Constraint("Equal", 6, 8))
sketch11.addConstraint(Sketcher.Constraint("Equal", 10, 12))
sketch11.addConstraint(Sketcher.Constraint("DistanceX", 1, 2, -1, 1, Q("2 in")))
sketch11.addConstraint(Sketcher.Constraint("DistanceY", 7, 2, 8, 2, Q("3 in")))
sketch11.addConstraint(Sketcher.Constraint("DistanceX", 1, 1, 1, 2, Q("0.25 in")))
sketch11.addConstraint(Sketcher.Constraint("DistanceY", 12, 2, -1, 1, Q("2.5 in")))
pad3 = body.newObject("PartDesign::Pad", "Pad002")
pad3.Profile = sketch11
pad3.Length = Q("1.125 in")
pad3.Reversed = True
doc.recompute()

fillet = body.newObject("PartDesign::Fillet", "Fillet")
fillet.Base = (pad3, edges_at(pad3, [
    (-57.15, 17.462, -3.175),
    (-57.15, 17.462, 3.175),
    (-50.8, 17.462, 3.175),
    (-50.8, 17.462, -3.175),
    (57.15, 17.462, 3.175),
    (57.15, 17.462, -3.175),
    (50.8, 17.462, -3.175),
    (50.8, 17.462, 3.175),
    (-57.15, 17.462, -63.5),
    (-50.8, 17.462, -63.5),
    (-50.8, 17.462, -69.85),
    (57.15, 17.462, 66.675),
    (50.8, 17.462, 66.675),
    (50.8, 17.462, 73.025),
    (57.15, 17.462, -63.5),
    (50.8, 17.462, -69.85),
    (50.8, 17.462, -63.5),
]))
fillet.Radius = Q("0.0625 in")

# Sketch on XZ plane
sketch12 = body.newObject("Sketcher::SketchObject", "Sketch011")
sketch12.AttachmentSupport = (doc.getObject("XZ_Plane"), [""])
sketch12.MapMode = "FlatFace"
sketch12.AttachmentOffset = App.Placement(V(0, 0, -1.25 * 25.4), App.Rotation())
sketch12.addGeometry(Part.Circle(V(53.975, -66.675, 0), V(0, 0, 1), 1.0795), False)
sketch12.addGeometry(Part.Circle(V(53.975, 69.85, 0), V(0, 0, 1), 1.0795), False)
sketch12.addGeometry(Part.Circle(V(53.975, 0, 0), V(0, 0, 1), 1.0795), False)
sketch12.addGeometry(Part.Circle(V(-53.975, 0, 0), V(0, 0, 1), 1.0795), False)
sketch12.addGeometry(Part.Circle(V(-53.975, -66.675, 0), V(0, 0, 1), 1.0795), False)
sketch12.addConstraint(Sketcher.Constraint("Equal", 0, 1))
sketch12.addConstraint(Sketcher.Constraint("Equal", 1, 2))
sketch12.addConstraint(Sketcher.Constraint("Equal", 2, 3))
sketch12.addConstraint(Sketcher.Constraint("Equal", 3, 4))
sketch12.addConstraint(Sketcher.Constraint("Symmetric", 2, 3, 3, 3, -1, 1))
sketch12.addConstraint(Sketcher.Constraint("Symmetric", 0, 3, 4, 3, -2))
sketch12.addConstraint(Sketcher.Constraint("PointOnObject", 2, 3, -1))
sketch12.addConstraint(Sketcher.Constraint("Vertical", 0, 3, 1, 3))
sketch12.addConstraint(Sketcher.Constraint("Vertical", 1, 3, 2, 3))
sketch12.addConstraint(Sketcher.Constraint("Diameter", 0, Q("0.085 in")))
sketch12.addConstraint(Sketcher.Constraint("DistanceY", -1, 1, 1, 3, Q("2.75 in")))
sketch12.addConstraint(Sketcher.Constraint("DistanceX", 3, 3, 2, 3, Q("4.25 in")))
sketch12.addConstraint(Sketcher.Constraint("DistanceY", 0, 3, -1, 1, Q("2.625 in")))
doc.recompute()
hole2 = body.newObject("PartDesign::Hole", "Hole001")
hole2.Profile = sketch12
hole2.ThreadType = "None"
hole2.Diameter = Q("0.085 in")
hole2.DepthType = "Dimension"
hole2.Depth = Q("0.5 in")
hole2.DrillPoint = "Angled"
hole2.DrillPointAngle = 118
hole2.Reversed = True

doc.recompute()
